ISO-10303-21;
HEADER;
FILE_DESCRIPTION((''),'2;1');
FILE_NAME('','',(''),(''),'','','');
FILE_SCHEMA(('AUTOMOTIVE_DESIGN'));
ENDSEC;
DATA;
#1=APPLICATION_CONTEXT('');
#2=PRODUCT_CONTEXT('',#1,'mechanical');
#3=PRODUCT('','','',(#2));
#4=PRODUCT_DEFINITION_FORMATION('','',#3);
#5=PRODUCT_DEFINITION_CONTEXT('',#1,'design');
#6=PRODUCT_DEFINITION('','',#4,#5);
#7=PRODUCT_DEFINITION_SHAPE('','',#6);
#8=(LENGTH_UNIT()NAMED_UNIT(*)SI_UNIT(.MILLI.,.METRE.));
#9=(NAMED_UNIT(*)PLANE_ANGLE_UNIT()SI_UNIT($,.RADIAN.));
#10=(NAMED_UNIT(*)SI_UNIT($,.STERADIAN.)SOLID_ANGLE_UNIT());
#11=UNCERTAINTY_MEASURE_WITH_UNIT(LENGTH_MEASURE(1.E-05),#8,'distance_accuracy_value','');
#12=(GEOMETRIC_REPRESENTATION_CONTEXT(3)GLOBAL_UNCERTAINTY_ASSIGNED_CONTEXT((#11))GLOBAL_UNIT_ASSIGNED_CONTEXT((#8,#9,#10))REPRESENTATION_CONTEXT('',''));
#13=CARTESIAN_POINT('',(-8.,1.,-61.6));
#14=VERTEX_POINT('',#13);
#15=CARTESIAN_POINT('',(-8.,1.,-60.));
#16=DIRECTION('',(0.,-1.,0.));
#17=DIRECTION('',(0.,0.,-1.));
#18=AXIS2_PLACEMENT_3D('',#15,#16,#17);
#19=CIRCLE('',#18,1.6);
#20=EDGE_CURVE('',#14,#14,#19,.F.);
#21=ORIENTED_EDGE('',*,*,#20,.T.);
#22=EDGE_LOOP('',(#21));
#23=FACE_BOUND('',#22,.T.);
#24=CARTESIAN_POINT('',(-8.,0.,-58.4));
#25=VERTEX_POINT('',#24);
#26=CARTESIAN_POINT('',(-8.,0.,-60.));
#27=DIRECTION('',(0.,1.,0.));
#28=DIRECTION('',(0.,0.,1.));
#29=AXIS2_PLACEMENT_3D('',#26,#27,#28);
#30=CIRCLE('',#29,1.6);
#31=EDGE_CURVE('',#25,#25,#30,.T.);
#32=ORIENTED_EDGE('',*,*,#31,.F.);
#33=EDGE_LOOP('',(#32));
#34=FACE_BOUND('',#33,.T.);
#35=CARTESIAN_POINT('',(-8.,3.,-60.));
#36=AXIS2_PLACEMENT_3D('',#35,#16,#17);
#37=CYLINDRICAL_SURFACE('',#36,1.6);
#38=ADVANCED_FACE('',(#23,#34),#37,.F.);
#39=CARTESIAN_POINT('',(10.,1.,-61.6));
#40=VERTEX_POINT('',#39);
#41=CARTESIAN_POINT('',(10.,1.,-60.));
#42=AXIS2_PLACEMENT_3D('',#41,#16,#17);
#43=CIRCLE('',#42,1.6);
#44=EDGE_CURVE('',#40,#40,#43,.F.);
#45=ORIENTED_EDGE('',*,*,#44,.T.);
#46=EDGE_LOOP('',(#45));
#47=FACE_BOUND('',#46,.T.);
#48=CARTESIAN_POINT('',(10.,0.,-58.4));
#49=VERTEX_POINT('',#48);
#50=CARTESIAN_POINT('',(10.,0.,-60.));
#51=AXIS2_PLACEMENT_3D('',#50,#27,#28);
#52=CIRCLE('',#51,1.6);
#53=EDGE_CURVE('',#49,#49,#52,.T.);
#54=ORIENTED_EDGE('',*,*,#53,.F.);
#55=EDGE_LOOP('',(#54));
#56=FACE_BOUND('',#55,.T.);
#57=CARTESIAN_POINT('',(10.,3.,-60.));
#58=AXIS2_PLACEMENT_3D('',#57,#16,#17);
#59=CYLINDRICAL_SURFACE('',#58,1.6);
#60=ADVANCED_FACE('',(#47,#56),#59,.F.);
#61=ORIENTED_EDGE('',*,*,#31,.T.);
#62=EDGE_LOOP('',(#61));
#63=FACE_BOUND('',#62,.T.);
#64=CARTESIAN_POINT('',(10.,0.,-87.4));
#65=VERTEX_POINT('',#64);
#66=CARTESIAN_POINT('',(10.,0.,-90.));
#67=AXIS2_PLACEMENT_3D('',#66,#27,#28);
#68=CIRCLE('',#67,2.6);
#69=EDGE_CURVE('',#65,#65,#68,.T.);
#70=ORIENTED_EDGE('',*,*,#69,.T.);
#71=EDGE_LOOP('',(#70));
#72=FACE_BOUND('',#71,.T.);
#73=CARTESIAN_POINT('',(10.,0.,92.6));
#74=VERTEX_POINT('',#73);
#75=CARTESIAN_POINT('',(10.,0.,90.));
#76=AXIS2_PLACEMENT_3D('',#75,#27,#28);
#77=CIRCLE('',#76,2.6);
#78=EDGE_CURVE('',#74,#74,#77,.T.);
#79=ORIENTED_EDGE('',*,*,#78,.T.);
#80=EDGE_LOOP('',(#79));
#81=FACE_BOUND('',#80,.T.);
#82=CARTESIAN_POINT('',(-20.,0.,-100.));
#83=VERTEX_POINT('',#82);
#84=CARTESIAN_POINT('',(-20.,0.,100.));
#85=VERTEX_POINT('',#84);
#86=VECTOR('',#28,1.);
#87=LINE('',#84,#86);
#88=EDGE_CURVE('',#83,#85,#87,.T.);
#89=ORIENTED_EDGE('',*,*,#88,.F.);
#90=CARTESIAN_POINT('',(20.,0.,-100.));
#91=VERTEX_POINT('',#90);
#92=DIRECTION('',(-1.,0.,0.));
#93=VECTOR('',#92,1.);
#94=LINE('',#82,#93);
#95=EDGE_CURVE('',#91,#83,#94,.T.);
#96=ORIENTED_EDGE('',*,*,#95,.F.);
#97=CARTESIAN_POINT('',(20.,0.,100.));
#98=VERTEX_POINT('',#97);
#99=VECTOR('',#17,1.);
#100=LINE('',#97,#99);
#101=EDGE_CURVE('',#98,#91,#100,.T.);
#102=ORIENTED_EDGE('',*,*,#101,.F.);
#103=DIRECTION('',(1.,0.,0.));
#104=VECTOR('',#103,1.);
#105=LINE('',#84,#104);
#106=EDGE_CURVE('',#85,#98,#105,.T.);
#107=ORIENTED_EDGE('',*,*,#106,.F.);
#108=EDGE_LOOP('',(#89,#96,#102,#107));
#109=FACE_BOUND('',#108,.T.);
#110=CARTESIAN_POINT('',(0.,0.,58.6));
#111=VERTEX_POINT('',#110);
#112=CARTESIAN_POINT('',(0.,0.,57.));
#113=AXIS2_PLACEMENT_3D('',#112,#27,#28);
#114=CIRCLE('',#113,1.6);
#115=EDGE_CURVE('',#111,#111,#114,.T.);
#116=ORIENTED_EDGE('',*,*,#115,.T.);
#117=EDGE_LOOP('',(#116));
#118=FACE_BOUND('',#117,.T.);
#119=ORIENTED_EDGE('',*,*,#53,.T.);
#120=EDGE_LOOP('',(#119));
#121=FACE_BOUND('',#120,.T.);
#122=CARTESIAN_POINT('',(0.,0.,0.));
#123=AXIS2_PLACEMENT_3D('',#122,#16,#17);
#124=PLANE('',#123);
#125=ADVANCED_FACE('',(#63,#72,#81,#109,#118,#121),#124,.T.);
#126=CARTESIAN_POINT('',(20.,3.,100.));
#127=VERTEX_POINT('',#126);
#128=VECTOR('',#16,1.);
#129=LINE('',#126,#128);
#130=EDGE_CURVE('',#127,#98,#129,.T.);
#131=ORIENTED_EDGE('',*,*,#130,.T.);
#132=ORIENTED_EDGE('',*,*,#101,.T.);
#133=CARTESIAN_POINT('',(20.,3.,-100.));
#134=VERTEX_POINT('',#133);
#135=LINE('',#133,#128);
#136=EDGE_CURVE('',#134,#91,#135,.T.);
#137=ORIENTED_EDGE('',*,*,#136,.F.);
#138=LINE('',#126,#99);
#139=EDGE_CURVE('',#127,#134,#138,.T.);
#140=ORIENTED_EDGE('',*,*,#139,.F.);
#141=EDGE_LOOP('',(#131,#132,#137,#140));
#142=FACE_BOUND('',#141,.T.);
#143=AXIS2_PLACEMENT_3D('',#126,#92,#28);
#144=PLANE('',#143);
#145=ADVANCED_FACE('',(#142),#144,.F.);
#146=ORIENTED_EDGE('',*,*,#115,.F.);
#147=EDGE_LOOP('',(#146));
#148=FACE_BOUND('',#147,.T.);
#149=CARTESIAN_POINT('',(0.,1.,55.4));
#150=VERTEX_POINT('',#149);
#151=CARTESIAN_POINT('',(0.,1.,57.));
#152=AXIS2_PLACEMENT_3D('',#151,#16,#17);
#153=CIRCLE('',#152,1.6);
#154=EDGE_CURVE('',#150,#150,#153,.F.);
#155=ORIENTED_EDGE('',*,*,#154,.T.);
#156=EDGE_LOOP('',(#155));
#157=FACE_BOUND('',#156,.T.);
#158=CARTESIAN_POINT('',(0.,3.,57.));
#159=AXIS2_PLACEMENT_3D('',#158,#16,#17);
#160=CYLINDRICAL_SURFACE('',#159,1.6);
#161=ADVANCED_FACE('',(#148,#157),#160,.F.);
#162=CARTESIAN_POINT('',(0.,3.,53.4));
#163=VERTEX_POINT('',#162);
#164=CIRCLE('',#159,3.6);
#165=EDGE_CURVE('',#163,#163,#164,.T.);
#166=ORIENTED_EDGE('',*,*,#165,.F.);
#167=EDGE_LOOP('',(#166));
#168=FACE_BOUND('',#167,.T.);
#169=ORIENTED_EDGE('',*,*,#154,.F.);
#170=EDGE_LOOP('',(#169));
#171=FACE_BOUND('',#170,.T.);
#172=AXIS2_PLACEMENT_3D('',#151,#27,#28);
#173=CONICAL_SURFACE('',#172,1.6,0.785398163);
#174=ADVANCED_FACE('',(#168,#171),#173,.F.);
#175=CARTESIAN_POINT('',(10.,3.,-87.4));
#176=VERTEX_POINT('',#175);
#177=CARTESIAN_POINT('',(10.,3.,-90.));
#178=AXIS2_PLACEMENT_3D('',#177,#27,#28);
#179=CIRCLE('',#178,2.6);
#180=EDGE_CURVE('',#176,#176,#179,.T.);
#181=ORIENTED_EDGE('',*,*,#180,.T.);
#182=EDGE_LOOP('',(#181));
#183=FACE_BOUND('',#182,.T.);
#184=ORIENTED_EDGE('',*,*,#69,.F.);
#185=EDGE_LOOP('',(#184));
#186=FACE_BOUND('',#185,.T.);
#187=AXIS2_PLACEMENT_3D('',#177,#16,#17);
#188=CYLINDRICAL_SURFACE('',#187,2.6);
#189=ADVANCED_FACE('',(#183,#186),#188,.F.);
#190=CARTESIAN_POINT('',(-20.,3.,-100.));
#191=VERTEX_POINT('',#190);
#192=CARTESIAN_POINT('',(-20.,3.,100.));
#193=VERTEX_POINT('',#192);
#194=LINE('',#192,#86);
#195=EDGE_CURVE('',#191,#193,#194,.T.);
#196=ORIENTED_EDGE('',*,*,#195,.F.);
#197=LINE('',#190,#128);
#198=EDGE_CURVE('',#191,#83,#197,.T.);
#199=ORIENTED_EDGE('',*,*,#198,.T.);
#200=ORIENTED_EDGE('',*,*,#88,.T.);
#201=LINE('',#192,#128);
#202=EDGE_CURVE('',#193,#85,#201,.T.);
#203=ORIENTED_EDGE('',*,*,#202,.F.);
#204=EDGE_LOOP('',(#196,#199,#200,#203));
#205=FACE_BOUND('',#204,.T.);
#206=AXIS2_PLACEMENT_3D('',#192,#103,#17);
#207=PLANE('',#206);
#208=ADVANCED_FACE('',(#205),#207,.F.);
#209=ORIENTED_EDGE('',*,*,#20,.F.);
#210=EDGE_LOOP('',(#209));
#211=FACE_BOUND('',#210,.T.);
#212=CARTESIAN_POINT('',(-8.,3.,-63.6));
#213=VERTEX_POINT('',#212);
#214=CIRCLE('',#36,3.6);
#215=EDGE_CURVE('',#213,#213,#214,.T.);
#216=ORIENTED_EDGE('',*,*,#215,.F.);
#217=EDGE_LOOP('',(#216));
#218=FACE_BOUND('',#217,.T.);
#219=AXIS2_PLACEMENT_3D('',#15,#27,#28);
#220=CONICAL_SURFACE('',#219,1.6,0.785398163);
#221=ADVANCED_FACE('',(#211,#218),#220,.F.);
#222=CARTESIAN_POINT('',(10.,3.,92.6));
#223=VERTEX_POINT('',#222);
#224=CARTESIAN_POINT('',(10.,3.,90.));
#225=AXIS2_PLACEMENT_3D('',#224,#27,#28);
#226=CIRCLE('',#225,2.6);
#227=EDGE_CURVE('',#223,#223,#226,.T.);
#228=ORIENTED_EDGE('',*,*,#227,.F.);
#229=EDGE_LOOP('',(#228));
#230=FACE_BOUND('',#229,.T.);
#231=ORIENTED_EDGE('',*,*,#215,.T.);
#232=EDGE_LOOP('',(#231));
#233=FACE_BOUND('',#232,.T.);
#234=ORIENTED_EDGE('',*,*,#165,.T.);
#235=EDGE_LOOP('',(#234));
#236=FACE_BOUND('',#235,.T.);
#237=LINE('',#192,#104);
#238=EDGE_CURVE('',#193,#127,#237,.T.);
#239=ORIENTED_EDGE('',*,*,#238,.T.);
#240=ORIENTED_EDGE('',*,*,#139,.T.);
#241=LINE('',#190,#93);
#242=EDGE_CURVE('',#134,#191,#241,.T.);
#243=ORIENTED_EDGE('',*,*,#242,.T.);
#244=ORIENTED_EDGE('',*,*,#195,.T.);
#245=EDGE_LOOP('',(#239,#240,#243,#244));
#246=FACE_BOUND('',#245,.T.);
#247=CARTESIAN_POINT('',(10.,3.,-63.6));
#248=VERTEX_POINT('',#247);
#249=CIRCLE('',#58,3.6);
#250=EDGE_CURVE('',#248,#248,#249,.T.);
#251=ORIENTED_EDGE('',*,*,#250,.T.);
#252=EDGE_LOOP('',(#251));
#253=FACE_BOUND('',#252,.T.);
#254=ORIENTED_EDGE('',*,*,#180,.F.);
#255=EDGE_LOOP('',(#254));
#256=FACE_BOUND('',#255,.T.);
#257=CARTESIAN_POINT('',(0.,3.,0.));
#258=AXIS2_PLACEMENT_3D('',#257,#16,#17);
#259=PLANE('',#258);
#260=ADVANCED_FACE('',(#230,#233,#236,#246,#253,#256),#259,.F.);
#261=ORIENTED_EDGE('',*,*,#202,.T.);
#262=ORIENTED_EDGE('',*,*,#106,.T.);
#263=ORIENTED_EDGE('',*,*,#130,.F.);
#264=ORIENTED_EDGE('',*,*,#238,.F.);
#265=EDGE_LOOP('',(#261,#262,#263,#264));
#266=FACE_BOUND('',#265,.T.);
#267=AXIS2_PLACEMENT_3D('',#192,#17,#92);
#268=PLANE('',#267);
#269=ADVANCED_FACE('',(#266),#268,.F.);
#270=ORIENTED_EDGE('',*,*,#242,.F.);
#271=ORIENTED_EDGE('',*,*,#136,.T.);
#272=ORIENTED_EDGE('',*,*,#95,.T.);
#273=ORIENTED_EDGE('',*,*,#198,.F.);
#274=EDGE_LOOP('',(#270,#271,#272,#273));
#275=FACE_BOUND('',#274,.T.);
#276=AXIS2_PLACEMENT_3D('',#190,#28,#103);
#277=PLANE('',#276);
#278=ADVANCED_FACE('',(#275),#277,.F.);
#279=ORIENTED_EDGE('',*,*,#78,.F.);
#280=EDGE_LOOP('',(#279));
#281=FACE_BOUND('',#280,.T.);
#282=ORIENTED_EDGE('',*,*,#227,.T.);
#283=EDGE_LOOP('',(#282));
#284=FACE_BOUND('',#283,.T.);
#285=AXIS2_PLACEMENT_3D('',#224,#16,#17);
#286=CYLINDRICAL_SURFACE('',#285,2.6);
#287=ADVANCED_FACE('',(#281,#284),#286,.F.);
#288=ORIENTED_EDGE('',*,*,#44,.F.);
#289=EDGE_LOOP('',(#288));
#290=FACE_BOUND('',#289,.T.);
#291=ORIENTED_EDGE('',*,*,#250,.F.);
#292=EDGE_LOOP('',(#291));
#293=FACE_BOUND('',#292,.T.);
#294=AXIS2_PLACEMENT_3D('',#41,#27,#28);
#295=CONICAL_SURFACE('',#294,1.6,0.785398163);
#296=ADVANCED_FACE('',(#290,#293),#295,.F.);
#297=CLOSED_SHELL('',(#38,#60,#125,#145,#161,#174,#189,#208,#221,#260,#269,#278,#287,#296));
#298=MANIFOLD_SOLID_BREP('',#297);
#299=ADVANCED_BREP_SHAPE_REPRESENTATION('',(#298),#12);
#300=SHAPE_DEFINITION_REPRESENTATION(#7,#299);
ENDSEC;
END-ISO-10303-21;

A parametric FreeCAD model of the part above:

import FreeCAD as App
import Part
import Sketcher
from FreeCAD import Vector
Q = App.Units.Quantity


def edges_at(feature, points):
    """Names of the edges that pass closest to the given points."""
    edges = feature.Shape.Edges
    near = lambda p: min(range(len(edges)), key=lambda i: edges[i].distToShape(Part.Vertex(*p))[0])
    return sorted({f"Edge{near(p) + 1}" for p in points})


def add_polygon(sketch, points):
    """Adds a closed chain of lines whose ends are joined by coincident constraints."""
    first, n = sketch.GeometryCount, len(points)
    for a, b in zip(points, points[1:] + points[:1]):
        sketch.addGeometry(Part.LineSegment(App.Vector(*a, 0), App.Vector(*b, 0)), False)
    for i in range(n):
        sketch.addConstraint(Sketcher.Constraint("Coincident", first + i, 2, first + (i + 1) % n, 1))

doc = App.newDocument("Part")
body = doc.addObject("PartDesign::Body", "Body")

# Sketch on XZ plane
sketch1 = body.newObject("Sketcher::SketchObject", "Sketch")
sketch1.AttachmentSupport = (doc.getObject("XZ_Plane"), [""])
sketch1.MapMode = "FlatFace"
add_polygon(sketch1, [(-20, -100), (-20, 100), (20, 100), (20, -100)])  # lines 0-3
sketch1.addGeometry(Part.Circle(Vector(0, 57, 0), Vector(0, 0, 1), 1.6), False)  # 4
sketch1.addGeometry(Part.Circle(Vector(10, 90, 0), Vector(0, 0, 1), 2.6), False)  # 5
sketch1.addGeometry(Part.Circle(Vector(-8, -60, 0), Vector(0, 0, 1), 1.6), False)  # 6
sketch1.addGeometry(Part.Circle(Vector(10, -60, 0), Vector(0, 0, 1), 1.6), False)  # 7
sketch1.addGeometry(Part.Circle(Vector(10, -90, 0), Vector(0, 0, 1), 2.6), False)  # 8
sketch1.addConstraint(Sketcher.Constraint("Vertical", 0))
sketch1.addConstraint(Sketcher.Constraint("Horizontal", 1))
sketch1.addConstraint(Sketcher.Constraint("Vertical", 2))
sketch1.addConstraint(Sketcher.Constraint("Horizontal", 3))
sketch1.addConstraint(Sketcher.Constraint("Equal", 4, 6))
sketch1.addConstraint(Sketcher.Constraint("Equal", 6, 7))
sketch1.addConstraint(Sketcher.Constraint("Equal", 5, 8))
sketch1.addConstraint(Sketcher.Constraint("Symmetric", 0, 2, 2, 2, -1, 1))
sketch1.addConstraint(Sketcher.Constraint("Symmetric", 5, 3, 8, 3, -1))
sketch1.addConstraint(Sketcher.Constraint("PointOnObject", 4, 3, -2))
sketch1.addConstraint(Sketcher.Constraint("Horizontal", 6, 3, 7, 3))
sketch1.addConstraint(Sketcher.Constraint("Vertical", 5, 3, 7, 3))
sketch1.addConstraint(Sketcher.Constraint("Diameter", 4, Q("3.2 mm")))
sketch1.addConstraint(Sketcher.Constraint("Diameter", 5, Q("5.2 mm")))
sketch1.addConstraint(Sketcher.Constraint("DistanceX", 1, 1, 1, 2, Q("40 mm")))
sketch1.addConstraint(Sketcher.Constraint("DistanceY", 0, 1, 0, 2, Q("200 mm")))
sketch1.addConstraint(Sketcher.Constraint("DistanceY", -1, 1, 4, 3, Q("57 mm")))
sketch1.addConstraint(Sketcher.Constraint("DistanceX", -1, 1, 5, 3, Q("10 mm")))
sketch1.addConstraint(Sketcher.Constraint("DistanceY", -1, 1, 5, 3, Q("90 mm")))
sketch1.addConstraint(Sketcher.Constraint("DistanceX", 6, 3, -1, 1, Q("8 mm")))
sketch1.addConstraint(Sketcher.Constraint("DistanceY", 6, 3, -1, 1, Q("60 mm")))
pad1 = body.newObject("PartDesign::Pad", "Pad")
pad1.Profile = sketch1
pad1.Length = 3
pad1.Reversed = True
doc.recompute()

chamfer = body.newObject("PartDesign::Chamfer", "Chamfer")
chamfer.Base = (pad1, edges_at(pad1, [(8.4, 3, -60), (-9.6, 3, -60), (-1.6, 3, 57)]))
chamfer.Size = 2

doc.recompute()
